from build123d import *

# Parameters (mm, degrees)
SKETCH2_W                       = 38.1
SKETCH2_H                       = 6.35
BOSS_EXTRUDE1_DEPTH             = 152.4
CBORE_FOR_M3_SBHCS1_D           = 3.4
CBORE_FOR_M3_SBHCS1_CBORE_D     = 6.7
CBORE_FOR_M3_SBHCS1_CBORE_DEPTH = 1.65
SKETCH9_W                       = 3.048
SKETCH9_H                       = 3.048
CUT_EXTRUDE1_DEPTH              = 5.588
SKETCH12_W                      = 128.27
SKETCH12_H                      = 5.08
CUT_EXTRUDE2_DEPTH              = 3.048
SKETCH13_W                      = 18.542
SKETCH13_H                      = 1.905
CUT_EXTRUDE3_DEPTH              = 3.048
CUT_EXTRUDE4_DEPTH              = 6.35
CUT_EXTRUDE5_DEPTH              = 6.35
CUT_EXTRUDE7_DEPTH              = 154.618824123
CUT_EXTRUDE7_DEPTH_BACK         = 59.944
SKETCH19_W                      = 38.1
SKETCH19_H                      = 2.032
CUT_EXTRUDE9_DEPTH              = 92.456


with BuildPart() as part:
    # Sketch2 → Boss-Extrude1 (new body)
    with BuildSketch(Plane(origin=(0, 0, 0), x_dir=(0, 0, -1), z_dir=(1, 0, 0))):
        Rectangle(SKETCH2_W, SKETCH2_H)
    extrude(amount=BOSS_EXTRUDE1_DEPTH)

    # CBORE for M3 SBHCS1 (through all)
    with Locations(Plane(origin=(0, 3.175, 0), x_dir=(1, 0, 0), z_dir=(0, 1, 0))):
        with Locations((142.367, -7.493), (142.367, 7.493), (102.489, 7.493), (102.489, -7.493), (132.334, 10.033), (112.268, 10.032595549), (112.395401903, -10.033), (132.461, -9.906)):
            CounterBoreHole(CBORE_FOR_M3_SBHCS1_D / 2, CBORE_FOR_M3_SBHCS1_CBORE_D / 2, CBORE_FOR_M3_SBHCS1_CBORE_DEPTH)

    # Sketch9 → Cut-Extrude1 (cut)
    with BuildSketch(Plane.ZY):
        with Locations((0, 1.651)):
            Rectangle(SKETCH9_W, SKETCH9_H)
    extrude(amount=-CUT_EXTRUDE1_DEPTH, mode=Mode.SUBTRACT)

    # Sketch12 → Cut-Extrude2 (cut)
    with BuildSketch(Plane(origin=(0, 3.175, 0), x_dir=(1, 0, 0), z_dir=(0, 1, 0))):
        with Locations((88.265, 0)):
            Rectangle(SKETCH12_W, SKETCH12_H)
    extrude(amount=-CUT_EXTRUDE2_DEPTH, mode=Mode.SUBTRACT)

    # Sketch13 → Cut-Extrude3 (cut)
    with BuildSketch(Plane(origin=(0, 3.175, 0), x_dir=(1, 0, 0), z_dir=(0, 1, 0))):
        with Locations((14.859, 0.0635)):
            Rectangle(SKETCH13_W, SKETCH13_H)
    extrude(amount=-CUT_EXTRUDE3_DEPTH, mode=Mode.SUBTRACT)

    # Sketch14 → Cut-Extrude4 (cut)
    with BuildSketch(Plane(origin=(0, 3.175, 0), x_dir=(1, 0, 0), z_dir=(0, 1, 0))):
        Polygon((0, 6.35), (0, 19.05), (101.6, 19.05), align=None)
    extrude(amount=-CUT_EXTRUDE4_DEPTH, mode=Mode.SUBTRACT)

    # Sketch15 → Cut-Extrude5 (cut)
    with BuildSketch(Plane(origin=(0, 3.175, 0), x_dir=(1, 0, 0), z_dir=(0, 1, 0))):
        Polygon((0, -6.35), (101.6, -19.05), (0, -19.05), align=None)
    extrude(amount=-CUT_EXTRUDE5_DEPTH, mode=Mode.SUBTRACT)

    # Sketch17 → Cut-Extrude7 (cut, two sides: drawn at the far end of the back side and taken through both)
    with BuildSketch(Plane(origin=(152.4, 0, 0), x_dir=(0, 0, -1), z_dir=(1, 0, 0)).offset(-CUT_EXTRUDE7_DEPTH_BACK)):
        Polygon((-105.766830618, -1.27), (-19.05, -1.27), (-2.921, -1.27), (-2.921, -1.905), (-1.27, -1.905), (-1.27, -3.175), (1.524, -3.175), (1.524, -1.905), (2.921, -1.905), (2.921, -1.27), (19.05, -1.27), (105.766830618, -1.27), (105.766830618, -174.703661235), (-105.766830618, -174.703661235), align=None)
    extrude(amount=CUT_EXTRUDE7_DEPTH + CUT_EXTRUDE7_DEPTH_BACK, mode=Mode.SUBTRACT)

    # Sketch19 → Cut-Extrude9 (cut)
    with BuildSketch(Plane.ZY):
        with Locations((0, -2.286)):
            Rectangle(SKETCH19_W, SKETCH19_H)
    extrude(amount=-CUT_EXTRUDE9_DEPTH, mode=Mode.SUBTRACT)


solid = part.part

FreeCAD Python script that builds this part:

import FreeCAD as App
import Part
import Sketcher
from FreeCAD import Vector
Q = App.Units.Quantity

doc = App.newDocument("Part")
params = doc.addObject("Spreadsheet::Sheet", "Params")
for row, (alias, value) in enumerate([
    ("sketch1_height", "1.5 in"),
    ("sketch1_width", "0.25 in"),
    ("pad1_length", "6 in"),
    ("hole_diameter", "3.4 mm"),
    ("hole_cbore_diameter", "6.7 mm"),
    ("hole_cbore_depth", "1.65 mm"),
    ("sketch3_width", "0.12 in"),
    ("pocket1_length", "0.22 in"),
    ("sketch4_height", "0.2 in"),
    ("sketch4_width", "5.05 in"),
    ("pocket2_length", "0.12 in"),
    ("sketch5_width", "0.73 in"),
    ("sketch5_height", "0.075 in"),
    ("pocket3_length", "0.12 in"),
    ("sketch6_width", "4 in"),
    ("sketch6_height", "0.5 in"),
    ("pocket4_length", "0.25 in"),
    ("sketch7_width", "4 in"),
    ("sketch7_height", "0.5 in"),
    ("pocket5_length", "0.25 in"),
    ("sketch8_width", "0.05 in"),
    ("sketch8_height", "0.11 in"),
    ("sketch8_width2", "0.025 in"),
    ("sketch8_height2", "0.055 in"),
    ("sketch8_height3", "0.065 in"),
    ("pocket6_length", "154.618824 mm"),
    ("pocket6_length2", "2.36 in"),
    ("sketch9_height", "1.5 in"),
    ("sketch9_width", "0.08 in"),
    ("pocket7_length", "3.64 in"),
], start=1):
    params.set(f"A{row}", alias)
    params.set(f"B{row}", "=" + value)
    params.setAlias(f"B{row}", alias)

body = doc.addObject("PartDesign::Body", "Body")

# Sketch on YZ plane
sketch1 = body.newObject("Sketcher::SketchObject", "Sketch")
sketch1.AttachmentSupport = (doc.getObject("YZ_Plane"), [""])
sketch1.MapMode = "FlatFace"
sketch1.addGeometry([
    Part.LineSegment(Vector(3, 19, 0), Vector(-3, 19, 0)),
    Part.LineSegment(Vector(-3, 19, 0), Vector(-3, -19, 0)),
    Part.LineSegment(Vector(-3, -19, 0), Vector(3, -19, 0)),
    Part.LineSegment(Vector(3, -19, 0), Vector(3, 19, 0)),
], False)
sketch1.addConstraint([
    Sketcher.Constraint("Coincident", 0, 2, 1, 1),
    Sketcher.Constraint("Coincident", 1, 2, 2, 1),
    Sketcher.Constraint("Coincident", 2, 2, 3, 1),
    Sketcher.Constraint("Coincident", 3, 2, 0, 1),
    Sketcher.Constraint("Horizontal", 0),
    Sketcher.Constraint("Vertical", 1),
    Sketcher.Constraint("Horizontal", 2),
    Sketcher.Constraint("Vertical", 3),
    Sketcher.Constraint("Symmetric", 0, 2, 2, 2, -1, 1),
    Sketcher.Constraint("DistanceY", 1, 2, 1, 1, Q("1.5 in")),
    Sketcher.Constraint("DistanceX", 0, 2, 0, 1, Q("0.25 in")),
])
sketch1.setExpression("Constraints[9]", "Params.sketch1_height")
sketch1.setExpression("Constraints[10]", "Params.sketch1_width")
pad1 = body.newObject("PartDesign::Pad", "Pad")
pad1.Profile = sketch1
pad1.setExpression("Length", "Params.pad1_length")

# Sketch on XZ plane
sketch2 = body.newObject("Sketcher::SketchObject", "Sketch001")
sketch2.AttachmentSupport = (doc.getObject("XZ_Plane"), [""])
sketch2.MapMode = "FlatFace"
sketch2.AttachmentOffset = App.Placement(Vector(0, 0, -0.125 * 25.4), App.Rotation())
sketch2.addGeometry([
    Part.Circle(Vector(142.4, 7.5, 0), Vector(0, 0, 1), 1.7),  # 0
    Part.Circle(Vector(142.4, -7.5, 0), Vector(0, 0, 1), 1.7),  # 1
    Part.Circle(Vector(102.5, -7.5, 0), Vector(0, 0, 1), 1.7),  # 2
    Part.Circle(Vector(102.5, 7.5, 0), Vector(0, 0, 1), 1.7),  # 3
    Part.Circle(Vector(132.3, -10, 0), Vector(0, 0, 1), 1.7),  # 4
    Part.Circle(Vector(112.3, -10, 0), Vector(0, 0, 1), 1.7),  # 5
    Part.Circle(Vector(112.4, 10, 0), Vector(0, 0, 1), 1.7),  # 6
    Part.Circle(Vector(132.5, 9.9, 0), Vector(0, 0, 1), 1.7),  # 7
], False)
sketch2.addConstraint([
    Sketcher.Constraint("Equal", 0, 1),
    Sketcher.Constraint("Equal", 1, 2),
    Sketcher.Constraint("Equal", 2, 3),
    Sketcher.Constraint("Equal", 3, 4),
    Sketcher.Constraint("Equal", 4, 5),
    Sketcher.Constraint("Equal", 5, 6),
    Sketcher.Constraint("Equal", 6, 7),
    Sketcher.Constraint("Symmetric", 0, 3, 1, 3, -1),
    Sketcher.Constraint("Symmetric", 2, 3, 3, 3, -1),
    Sketcher.Constraint("Horizontal", 1, 3, 2, 3),
    Sketcher.Constraint("DistanceY", 4, 3, 1, 3, Q("0.1 in")),
    Sketcher.Constraint("DistanceY", 3, 3, 6, 3, Q("0.1 in")),
    Sketcher.Constraint("Diameter", 0, Q("3.4 mm")),
    Sketcher.Constraint("DistanceX", -1, 1, 4, 3, Q("5.21 in")),
    Sketcher.Constraint("DistanceX", -1, 1, 5, 3, Q("4.42 in")),
    Sketcher.Constraint("DistanceY", -1, 1, 7, 3, Q("0.39 in")),
    Sketcher.Constraint("DistanceY", 1, 3, 0, 3, Q("0.59 in")),
    Sketcher.Constraint("DistanceX", 2, 3, 1, 3, Q("1.57 in")),
    Sketcher.Constraint("DistanceX", 7, 3, 0, 3, Q("0.39 in")),
    Sketcher.Constraint("DistanceX", -1, 1, 0, 3, Q("5.605 in")),
    Sketcher.Constraint("DistanceX", -1, 1, 6, 3, Q("112.395402 mm")),
    Sketcher.Constraint("DistanceY", 5, 3, -1, 1, Q("10.032596 mm")),
])
doc.recompute()
hole = body.newObject("PartDesign::Hole", "Hole")
hole.Profile = sketch2
hole.ThreadType = "None"
hole.setExpression("Diameter", "Params.hole_diameter")
hole.DepthType = "ThroughAll"
hole.HoleCutType = "Counterbore"
hole.setExpression("HoleCutDiameter", "Params.hole_cbore_diameter")
hole.setExpression("HoleCutDepth", "Params.hole_cbore_depth")
hole.Reversed = True

# Sketch on YZ plane
sketch3 = body.newObject("Sketcher::SketchObject", "Sketch002")
sketch3.AttachmentSupport = (doc.getObject("YZ_Plane"), [""])
sketch3.MapMode = "FlatFace"
sketch3.addGeometry([
    Part.LineSegment(Vector(3.2, -1.5, 0), Vector(0.1, -1.5, 0)),
    Part.LineSegment(Vector(0.1, -1.5, 0), Vector(0.1, 1.5, 0)),
    Part.LineSegment(Vector(0.1, 1.5, 0), Vector(3.2, 1.5, 0)),
    Part.LineSegment(Vector(3.2, 1.5, 0), Vector(3.2, -1.5, 0)),
], False)
sketch3.addConstraint([
    Sketcher.Constraint("Coincident", 0, 2, 1, 1),
    Sketcher.Constraint("Coincident", 1, 2, 2, 1),
    Sketcher.Constraint("Coincident", 2, 2, 3, 1),
    Sketcher.Constraint("Coincident", 3, 2, 0, 1),
    Sketcher.Constraint("Horizontal", 0),
    Sketcher.Constraint("Vertical", 1),
    Sketcher.Constraint("Horizontal", 2),
    Sketcher.Constraint("Vertical", 3),
    Sketcher.Constraint("Equal", 2, 1),
    Sketcher.Constraint("DistanceX", 0, 2, 0, 1, Q("0.12 in")),
    Sketcher.Constraint("DistanceY", 0, 2, -1, 1, Q("0.06 in")),
    Sketcher.Constraint("DistanceX", -1, 1, 0, 2, Q("0.005 in")),
])
sketch3.setExpression("Constraints[9]", "Params.sketch3_width")
pocket1 = body.newObject("PartDesign::Pocket", "Pocket")
pocket1.Profile = sketch3
pocket1.setExpression("Length", "Params.pocket1_length")
pocket1.Reversed = True

# Sketch on XZ plane
sketch4 = body.newObject("Sketcher::SketchObject", "Sketch003")
sketch4.AttachmentSupport = (doc.getObject("XZ_Plane"), [""])
sketch4.MapMode = "FlatFace"
sketch4.AttachmentOffset = App.Placement(Vector(0, 0, -0.125 * 25.4), App.Rotation())
sketch4.addGeometry([
    Part.LineSegment(Vector(24, -3, 0), Vector(24, 3, 0)),
    Part.LineSegment(Vector(24, 3, 0), Vector(152, 3, 0)),
    Part.LineSegment(Vector(152, 3, 0), Vector(152, -3, 0)),
    Part.LineSegment(Vector(152, -3, 0), Vector(24, -3, 0)),
], False)
sketch4.addConstraint([
    Sketcher.Constraint("Coincident", 0, 2, 1, 1),
    Sketcher.Constraint("Coincident", 1, 2, 2, 1),
    Sketcher.Constraint("Coincident", 2, 2, 3, 1),
    Sketcher.Constraint("Coincident", 3, 2, 0, 1),
    Sketcher.Constraint("Vertical", 0),
    Sketcher.Constraint("Horizontal", 1),
    Sketcher.Constraint("Vertical", 2),
    Sketcher.Constraint("Horizontal", 3),
    Sketcher.Constraint("DistanceY", 0, 1, 0, 2, Q("0.2 in")),
    Sketcher.Constraint("DistanceX", -1, 1, 1, 2, Q("6 in")),
    Sketcher.Constraint("DistanceX", 1, 1, 1, 2, Q("5.05 in")),
    Sketcher.Constraint("DistanceY", -1, 1, 0, 2, Q("0.1 in")),
])
sketch4.setExpression("Constraints[8]", "Params.sketch4_height")
sketch4.setExpression("Constraints[10]", "Params.sketch4_width")
pocket2 = body.newObject("PartDesign::Pocket", "Pocket001")
pocket2.Profile = sketch4
pocket2.setExpression("Length", "Params.pocket2_length")
pocket2.Reversed = True

# Sketch on XZ plane
sketch5 = body.newObject("Sketcher::SketchObject", "Sketch004")
sketch5.AttachmentSupport = (doc.getObject("XZ_Plane"), [""])
sketch5.MapMode = "FlatFace"
sketch5.AttachmentOffset = App.Placement(Vector(0, 0, -0.125 * 25.4), App.Rotation())
sketch5.addGeometry([
    Part.LineSegment(Vector(5.6, -1, 0), Vector(5.6, 0.9, 0)),
    Part.LineSegment(Vector(5.6, 0.9, 0), Vector(24.1, 0.9, 0)),
    Part.LineSegment(Vector(24.1, 0.9, 0), Vector(24.1, -1, 0)),
    Part.LineSegment(Vector(24.1, -1, 0), Vector(5.6, -1, 0)),
], False)
sketch5.addConstraint([
    Sketcher.Constraint("Coincident", 0, 2, 1, 1),
    Sketcher.Constraint("Coincident", 1, 2, 2, 1),
    Sketcher.Constraint("Coincident", 2, 2, 3, 1),
    Sketcher.Constraint("Coincident", 3, 2, 0, 1),
    Sketcher.Constraint("Vertical", 0),
    Sketcher.Constraint("Horizontal", 1),
    Sketcher.Constraint("Vertical", 2),
    Sketcher.Constraint("Horizontal", 3),
    Sketcher.Constraint("DistanceX", 1, 1, 1, 2, Q("0.73 in")),
    Sketcher.Constraint("DistanceY", 0, 1, 0, 2, Q("0.075 in")),
    Sketcher.Constraint("DistanceX", -1, 1, 0, 2, Q("0.22 in")),
    Sketcher.Constraint("DistanceY", 2, 2, -1, 1, Q("0.04 in")),
])
sketch5.setExpression("Constraints[8]", "Params.sketch5_width")
sketch5.setExpression("Constraints[9]", "Params.sketch5_height")
pocket3 = body.newObject("PartDesign::Pocket", "Pocket002")
pocket3.Profile = sketch5
pocket3.setExpression("Length", "Params.pocket3_length")
pocket3.Reversed = True

# Sketch on XZ plane
sketch6 = body.newObject("Sketcher::SketchObject", "Sketch005")
sketch6.AttachmentSupport = (doc.getObject("XZ_Plane"), [""])
sketch6.MapMode = "FlatFace"
sketch6.AttachmentOffset = App.Placement(Vector(0, 0, -0.125 * 25.4), App.Rotation())
sketch6.addGeometry([
    Part.LineSegment(Vector(0, -19, 0), Vector(0, -6, 0)),
    Part.LineSegment(Vector(0, -6, 0), Vector(102, -19, 0)),
    Part.LineSegment(Vector(102, -19, 0), Vector(0, -19, 0)),
], False)
sketch6.addConstraint([
    Sketcher.Constraint("Coincident", 0, 2, 1, 1),
    Sketcher.Constraint("Coincident", 1, 2, 2, 1),
    Sketcher.Constraint("Coincident", 2, 2, 0, 1),
    Sketcher.Constraint("Vertical", 0),
    Sketcher.Constraint("Horizontal", 2),
    Sketcher.Constraint("PointOnObject", 0, 2, -2),
    Sketcher.Constraint("DistanceX", 2, 2, 2, 1, Q("4 in")),
    Sketcher.Constraint("DistanceY", 0, 1, 0, 2, Q("0.5 in")),
    Sketcher.Constraint("DistanceY", 0, 2, -1, 1, Q("0.25 in")),
])
sketch6.setExpression("Constraints[6]", "Params.sketch6_width")
sketch6.setExpression("Constraints[7]", "Params.sketch6_height")
pocket4 = body.newObject("PartDesign::Pocket", "Pocket003")
pocket4.Profile = sketch6
pocket4.setExpression("Length", "Params.pocket4_length")
pocket4.Reversed = True

# Sketch on XZ plane
sketch7 = body.newObject("Sketcher::SketchObject", "Sketch006")
sketch7.AttachmentSupport = (doc.getObject("XZ_Plane"), [""])
sketch7.MapMode = "FlatFace"
sketch7.AttachmentOffset = App.Placement(Vector(0, 0, -0.125 * 25.4), App.Rotation())
sketch7.addGeometry([
    Part.LineSegment(Vector(102, 19, 0), Vector(0, 6, 0)),
    Part.LineSegment(Vector(0, 6, 0), Vector(0, 19, 0)),
    Part.LineSegment(Vector(0, 19, 0), Vector(102, 19, 0)),
], False)
sketch7.addConstraint([
    Sketcher.Constraint("Coincident", 0, 2, 1, 1),
    Sketcher.Constraint("Coincident", 1, 2, 2, 1),
    Sketcher.Constraint("Coincident", 2, 2, 0, 1),
    Sketcher.Constraint("Vertical", 1),
    Sketcher.Constraint("Horizontal", 2),
    Sketcher.Constraint("PointOnObject", 0, 2, -2),
    Sketcher.Constraint("DistanceX", 2, 1, 2, 2, Q("4 in")),
    Sketcher.Constraint("DistanceY", 1, 1, 1, 2, Q("0.5 in")),
    Sketcher.Constraint("DistanceY", -1, 1, 0, 2, Q("0.25 in")),
])
sketch7.setExpression("Constraints[6]", "Params.sketch7_width")
sketch7.setExpression("Constraints[7]", "Params.sketch7_height")
pocket5 = body.newObject("PartDesign::Pocket", "Pocket004")
pocket5.Profile = sketch7
pocket5.setExpression("Length", "Params.pocket5_length")
pocket5.Reversed = True

# Sketch on YZ plane
sketch8 = body.newObject("Sketcher::SketchObject", "Sketch007")
sketch8.AttachmentSupport = (doc.getObject("YZ_Plane"), [""])
sketch8.MapMode = "FlatFace"
sketch8.AttachmentOffset = App.Placement(Vector(0, 0, 6 * 25.4), App.Rotation())
sketch8.addGeometry([
    Part.LineSegment(Vector(-1.3, 2.9, 0), Vector(-1.3, 105.8, 0)),  # 0
    Part.LineSegment(Vector(-1.3, 105.8, 0), Vector(-174.7, 105.8, 0)),  # 1
    Part.LineSegment(Vector(-174.7, 105.8, 0), Vector(-174.7, -105.8, 0)),  # 2
    Part.LineSegment(Vector(-174.7, -105.8, 0), Vector(-1.3, -105.8, 0)),  # 3
    Part.LineSegment(Vector(-1.3, -105.8, 0), Vector(-1.3, -2.9, 0)),  # 4
    Part.LineSegment(Vector(-1.3, -2.9, 0), Vector(-1.9, -2.9, 0)),  # 5
    Part.LineSegment(Vector(-1.9, -2.9, 0), Vector(-1.9, -1.5, 0)),  # 6
    Part.LineSegment(Vector(-1.9, -1.5, 0), Vector(-3.2, -1.5, 0)),  # 7
    Part.LineSegment(Vector(-3.2, -1.5, 0), Vector(-3.2, 1.3, 0)),  # 8
    Part.LineSegment(Vector(-3.2, 1.3, 0), Vector(-1.9, 1.3, 0)),  # 9
    Part.LineSegment(Vector(-1.9, 1.3, 0), Vector(-1.9, 2.9, 0)),  # 10
    Part.LineSegment(Vector(-1.9, 2.9, 0), Vector(-1.3, 2.9, 0)),  # 11
], False)
sketch8.addConstraint([
    Sketcher.Constraint("Coincident", 0, 2, 1, 1),
    Sketcher.Constraint("Coincident", 1, 2, 2, 1),
    Sketcher.Constraint("Coincident", 2, 2, 3, 1),
    Sketcher.Constraint("Coincident", 3, 2, 4, 1),
    Sketcher.Constraint("Coincident", 4, 2, 5, 1),
    Sketcher.Constraint("Coincident", 5, 2, 6, 1),
    Sketcher.Constraint("Coincident", 6, 2, 7, 1),
    Sketcher.Constraint("Coincident", 7, 2, 8, 1),
    Sketcher.Constraint("Coincident", 8, 2, 9, 1),
    Sketcher.Constraint("Coincident", 9, 2, 10, 1),
    Sketcher.Constraint("Coincident", 10, 2, 11, 1),
    Sketcher.Constraint("Coincident", 11, 2, 0, 1),
    Sketcher.Constraint("Vertical", 0),
    Sketcher.Constraint("Horizontal", 1),
    Sketcher.Constraint("Vertical", 2),
    Sketcher.Constraint("Horizontal", 3),
    Sketcher.Constraint("Vertical", 4),
    Sketcher.Constraint("Horizontal", 5),
    Sketcher.Constraint("Vertical", 6),
    Sketcher.Constraint("Horizontal", 7),
    Sketcher.Constraint("Vertical", 8),
    Sketcher.Constraint("Horizontal", 9),
    Sketcher.Constraint("Vertical", 10),
    Sketcher.Constraint("Horizontal", 11),
    Sketcher.Constraint("Symmetric", 0, 2, 3, 2, -1),
    Sketcher.Constraint("Symmetric", 5, 2, 10, 2, -1),
    Sketcher.Constraint("DistanceX", 7, 2, 7, 1, Q("0.05 in")),
    Sketcher.Constraint("DistanceY", 8, 1, 8, 2, Q("0.11 in")),
    Sketcher.Constraint("DistanceX", 5, 2, 5, 1, Q("0.025 in")),
    Sketcher.Constraint("DistanceY", 6, 1, 6, 2, Q("0.055 in")),
    Sketcher.Constraint("DistanceY", 10, 1, 10, 2, Q("0.065 in")),
    Sketcher.Constraint("DistanceX", 0, 2, -1, 1, Q("0.05 in")),
    Sketcher.Constraint("DistanceX", 1, 2, 1, 1, Q("173.433661 mm")),
    Sketcher.Constraint("DistanceY", 0, 1, 0, 2, Q("102.845831 mm")),
])
sketch8.setExpression("Constraints[26]", "Params.sketch8_width")
sketch8.setExpression("Constraints[27]", "Params.sketch8_height")
sketch8.setExpression("Constraints[28]", "Params.sketch8_width2")
sketch8.setExpression("Constraints[29]", "Params.sketch8_height2")
sketch8.setExpression("Constraints[30]", "Params.sketch8_height3")
pocket6 = body.newObject("PartDesign::Pocket", "Pocket005")
pocket6.Profile = sketch8
pocket6.Type = "TwoLengths"
pocket6.setExpression("Length", "Params.pocket6_length")
pocket6.setExpression("Length2", "Params.pocket6_length2")
pocket6.Reversed = True

# Sketch on YZ plane
sketch9 = body.newObject("Sketcher::SketchObject", "Sketch008")
sketch9.AttachmentSupport = (doc.getObject("YZ_Plane"), [""])
sketch9.MapMode = "FlatFace"
sketch9.addGeometry([
    Part.LineSegment(Vector(-1.3, -19.1, 0), Vector(-3.3, -19.1, 0)),
    Part.LineSegment(Vector(-3.3, -19.1, 0), Vector(-3.3, 19.1, 0)),
    Part.LineSegment(Vector(-3.3, 19.1, 0), Vector(-1.3, 19.1, 0)),
    Part.LineSegment(Vector(-1.3, 19.1, 0), Vector(-1.3, -19.1, 0)),
], False)
sketch9.addConstraint([
    Sketcher.Constraint("Coincident", 0, 2, 1, 1),
    Sketcher.Constraint("Coincident", 1, 2, 2, 1),
    Sketcher.Constraint("Coincident", 2, 2, 3, 1),
    Sketcher.Constraint("Coincident", 3, 2, 0, 1),
    Sketcher.Constraint("Horizontal", 0),
    Sketcher.Constraint("Vertical", 1),
    Sketcher.Constraint("Horizontal", 2),
    Sketcher.Constraint("Vertical", 3),
    Sketcher.Constraint("DistanceY", 1, 1, 1, 2, Q("1.5 in")),
    Sketcher.Constraint("DistanceX", 0, 2, 0, 1, Q("0.08 in")),
    Sketcher.Constraint("DistanceX", 0, 2, -1, 1, Q("0.13 in")),
    Sketcher.Constraint("DistanceY", 0, 2, -1, 1, Q("0.75 in")),
])
sketch9.setExpression("Constraints[8]", "Params.sketch9_height")
sketch9.setExpression("Constraints[9]", "Params.sketch9_width")
pocket7 = body.newObject("PartDesign::Pocket", "Pocket006")
pocket7.Profile = sketch9
pocket7.setExpression("Length", "Params.pocket7_length")
pocket7.Reversed = True

doc.recompute()
